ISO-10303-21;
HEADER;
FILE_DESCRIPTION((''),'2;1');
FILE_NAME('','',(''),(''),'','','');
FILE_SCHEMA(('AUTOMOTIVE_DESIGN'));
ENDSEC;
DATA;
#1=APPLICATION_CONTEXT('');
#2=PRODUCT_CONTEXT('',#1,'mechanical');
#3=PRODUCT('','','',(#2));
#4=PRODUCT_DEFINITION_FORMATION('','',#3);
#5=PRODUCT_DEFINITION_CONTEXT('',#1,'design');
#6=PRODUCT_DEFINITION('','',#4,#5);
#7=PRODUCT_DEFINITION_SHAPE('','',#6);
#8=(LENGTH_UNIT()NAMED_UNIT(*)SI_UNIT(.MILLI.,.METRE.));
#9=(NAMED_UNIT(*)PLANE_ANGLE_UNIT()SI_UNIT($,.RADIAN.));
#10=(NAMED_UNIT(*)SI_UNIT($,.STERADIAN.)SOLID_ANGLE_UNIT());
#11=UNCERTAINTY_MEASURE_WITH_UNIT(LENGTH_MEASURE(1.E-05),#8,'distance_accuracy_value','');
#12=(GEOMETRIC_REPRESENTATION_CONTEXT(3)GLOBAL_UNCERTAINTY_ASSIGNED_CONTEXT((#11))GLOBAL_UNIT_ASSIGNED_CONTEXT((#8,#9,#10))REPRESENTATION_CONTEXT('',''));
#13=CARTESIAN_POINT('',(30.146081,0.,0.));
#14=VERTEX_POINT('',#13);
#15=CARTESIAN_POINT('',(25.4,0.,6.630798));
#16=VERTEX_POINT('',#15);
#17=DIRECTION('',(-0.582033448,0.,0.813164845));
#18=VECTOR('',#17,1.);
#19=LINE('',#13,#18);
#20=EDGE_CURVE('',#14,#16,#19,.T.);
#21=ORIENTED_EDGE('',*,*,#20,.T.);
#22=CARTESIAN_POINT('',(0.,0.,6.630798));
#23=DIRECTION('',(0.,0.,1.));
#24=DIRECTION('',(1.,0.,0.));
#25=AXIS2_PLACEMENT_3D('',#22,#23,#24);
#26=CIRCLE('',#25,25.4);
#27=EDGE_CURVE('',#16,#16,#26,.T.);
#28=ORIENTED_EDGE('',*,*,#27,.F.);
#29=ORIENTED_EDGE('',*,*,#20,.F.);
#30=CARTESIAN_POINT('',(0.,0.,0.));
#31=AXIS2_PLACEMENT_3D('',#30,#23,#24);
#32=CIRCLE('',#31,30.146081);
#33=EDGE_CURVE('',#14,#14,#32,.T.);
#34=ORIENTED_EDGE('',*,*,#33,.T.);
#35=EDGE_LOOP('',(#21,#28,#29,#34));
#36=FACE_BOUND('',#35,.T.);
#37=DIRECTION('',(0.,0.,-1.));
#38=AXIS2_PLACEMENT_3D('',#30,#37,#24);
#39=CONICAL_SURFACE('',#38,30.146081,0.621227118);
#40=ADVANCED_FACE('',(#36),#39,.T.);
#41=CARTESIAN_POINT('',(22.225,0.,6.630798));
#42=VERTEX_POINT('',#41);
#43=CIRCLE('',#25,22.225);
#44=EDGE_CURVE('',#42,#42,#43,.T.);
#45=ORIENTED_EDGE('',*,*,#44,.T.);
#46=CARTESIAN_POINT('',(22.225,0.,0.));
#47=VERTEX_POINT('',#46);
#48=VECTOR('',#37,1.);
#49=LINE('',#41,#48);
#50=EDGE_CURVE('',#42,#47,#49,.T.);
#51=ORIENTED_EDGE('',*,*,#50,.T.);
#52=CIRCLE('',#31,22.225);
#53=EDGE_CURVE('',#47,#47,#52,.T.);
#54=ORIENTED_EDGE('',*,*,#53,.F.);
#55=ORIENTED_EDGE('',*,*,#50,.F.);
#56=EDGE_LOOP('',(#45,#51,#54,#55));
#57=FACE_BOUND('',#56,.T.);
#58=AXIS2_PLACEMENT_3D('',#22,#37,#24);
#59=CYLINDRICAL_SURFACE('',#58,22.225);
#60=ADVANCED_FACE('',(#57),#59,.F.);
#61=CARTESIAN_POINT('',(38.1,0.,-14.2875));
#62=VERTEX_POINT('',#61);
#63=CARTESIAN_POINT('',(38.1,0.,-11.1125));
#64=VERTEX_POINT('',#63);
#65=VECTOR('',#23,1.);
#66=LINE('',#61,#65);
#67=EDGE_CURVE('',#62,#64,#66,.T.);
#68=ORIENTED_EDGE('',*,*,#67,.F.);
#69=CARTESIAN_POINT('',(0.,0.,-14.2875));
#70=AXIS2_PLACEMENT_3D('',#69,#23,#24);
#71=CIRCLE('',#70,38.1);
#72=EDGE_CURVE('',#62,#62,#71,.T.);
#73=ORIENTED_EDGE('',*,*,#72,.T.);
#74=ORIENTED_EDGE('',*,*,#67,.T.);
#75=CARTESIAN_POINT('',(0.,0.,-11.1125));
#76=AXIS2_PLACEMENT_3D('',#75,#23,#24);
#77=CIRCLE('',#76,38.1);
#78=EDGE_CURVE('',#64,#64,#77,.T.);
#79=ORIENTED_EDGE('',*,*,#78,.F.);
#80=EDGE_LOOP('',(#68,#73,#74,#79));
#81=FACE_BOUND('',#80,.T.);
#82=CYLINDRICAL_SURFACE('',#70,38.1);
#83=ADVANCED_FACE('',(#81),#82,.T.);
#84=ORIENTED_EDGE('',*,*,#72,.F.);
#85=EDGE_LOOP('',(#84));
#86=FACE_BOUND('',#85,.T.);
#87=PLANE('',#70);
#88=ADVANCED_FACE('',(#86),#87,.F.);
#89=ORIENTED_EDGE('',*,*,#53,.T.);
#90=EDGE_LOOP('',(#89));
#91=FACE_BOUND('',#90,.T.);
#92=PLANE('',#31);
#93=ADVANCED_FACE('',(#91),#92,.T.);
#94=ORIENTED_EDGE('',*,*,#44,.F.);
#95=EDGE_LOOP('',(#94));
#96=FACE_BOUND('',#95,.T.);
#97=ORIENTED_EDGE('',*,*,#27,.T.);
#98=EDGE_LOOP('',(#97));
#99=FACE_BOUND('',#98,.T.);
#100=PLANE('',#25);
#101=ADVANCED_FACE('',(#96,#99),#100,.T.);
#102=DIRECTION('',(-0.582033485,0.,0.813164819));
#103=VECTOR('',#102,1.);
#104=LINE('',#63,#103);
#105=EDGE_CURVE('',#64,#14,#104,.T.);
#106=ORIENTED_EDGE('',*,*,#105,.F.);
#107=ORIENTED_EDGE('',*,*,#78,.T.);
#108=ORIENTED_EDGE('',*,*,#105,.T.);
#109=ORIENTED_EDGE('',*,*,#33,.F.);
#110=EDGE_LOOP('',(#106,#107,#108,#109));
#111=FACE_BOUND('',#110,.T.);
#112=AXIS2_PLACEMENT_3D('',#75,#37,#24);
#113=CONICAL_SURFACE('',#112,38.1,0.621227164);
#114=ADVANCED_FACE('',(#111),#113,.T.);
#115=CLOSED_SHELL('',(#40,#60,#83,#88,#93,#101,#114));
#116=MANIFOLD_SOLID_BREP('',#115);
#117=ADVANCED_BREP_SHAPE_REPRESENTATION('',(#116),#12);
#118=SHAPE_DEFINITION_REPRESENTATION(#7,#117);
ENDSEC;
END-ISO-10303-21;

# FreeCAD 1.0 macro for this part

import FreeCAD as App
import Part
import Sketcher
Q = App.Units.Quantity


def add_polygon(sketch, points):
    """Adds a closed chain of lines whose ends are joined by coincident constraints."""
    first, n = sketch.GeometryCount, len(points)
    for a, b in zip(points, points[1:] + points[:1]):
        sketch.addGeometry(Part.LineSegment(App.Vector(*a, 0), App.Vector(*b, 0)), False)
    for i in range(n):
        sketch.addConstraint(Sketcher.Constraint("Coincident", first + i, 2, first + (i + 1) % n, 1))

doc = App.newDocument("Part")
params = doc.addObject("Spreadsheet::Sheet", "Params")
for row, (alias, value) in enumerate([
    ("sketch1_width", "1.5 in"),
    ("sketch1_width2", "0.125 in"),
    ("sketch1_height", "0.5625 in"),
    ("revolution_angle", "360 deg"),
], start=1):
    params.set(f"A{row}", alias)
    params.set(f"B{row}", "=" + value)
    params.setAlias(f"B{row}", alias)

body = doc.addObject("PartDesign::Body", "Body")

# Sketch on XZ plane
sketch1 = body.newObject("Sketcher::SketchObject", "Sketch")
sketch1.AttachmentSupport = (doc.getObject("XZ_Plane"), [""])
sketch1.MapMode = "FlatFace"
add_polygon(sketch1, [(0, 0), (0, -14.2875), (38.1, -14.2875), (38.1, -11.1125), (30.146081, 0), (25.4, 6.630798), (22.225, 6.630798), (22.225, 0)])  # lines 0-7
sketch1.addConstraint([
    Sketcher.Constraint("Vertical", 0),
    Sketcher.Constraint("Horizontal", 1),
    Sketcher.Constraint("Vertical", 2),
    Sketcher.Constraint("Horizontal", 5),
    Sketcher.Constraint("Vertical", 6),
    Sketcher.Constraint("Horizontal", 7),
    Sketcher.Constraint("Coincident", 7, 2, -1, 1),
    Sketcher.Constraint("PointOnObject", 3, 2, -1),
    Sketcher.Constraint("Parallel", 3, 4),
    Sketcher.Constraint("Equal", 5, 2),
    Sketcher.Constraint("DistanceX", 1, 1, 1, 2, Q("1.5 in")),
    Sketcher.Constraint("DistanceX", -1, 1, 4, 2, Q("1 in")),
    Sketcher.Constraint("DistanceX", 5, 2, 5, 1, Q("0.125 in")),
    Sketcher.Constraint("DistanceY", 0, 2, 0, 1, Q("0.5625 in")),
    Sketcher.Constraint("DistanceY", 6, 2, 6, 1, 6.630798),
])
sketch1.setExpression("Constraints[18]", "Params.sketch1_width")
sketch1.setExpression("Constraints[20]", "Params.sketch1_width2")
sketch1.setExpression("Constraints[21]", "Params.sketch1_height")
revolution = body.newObject("PartDesign::Revolution", "Revolution")
revolution.Profile = sketch1
revolution.ReferenceAxis = (sketch1, ["V_Axis"])
revolution.setExpression("Angle", "Params.revolution_angle")

doc.recompute()
